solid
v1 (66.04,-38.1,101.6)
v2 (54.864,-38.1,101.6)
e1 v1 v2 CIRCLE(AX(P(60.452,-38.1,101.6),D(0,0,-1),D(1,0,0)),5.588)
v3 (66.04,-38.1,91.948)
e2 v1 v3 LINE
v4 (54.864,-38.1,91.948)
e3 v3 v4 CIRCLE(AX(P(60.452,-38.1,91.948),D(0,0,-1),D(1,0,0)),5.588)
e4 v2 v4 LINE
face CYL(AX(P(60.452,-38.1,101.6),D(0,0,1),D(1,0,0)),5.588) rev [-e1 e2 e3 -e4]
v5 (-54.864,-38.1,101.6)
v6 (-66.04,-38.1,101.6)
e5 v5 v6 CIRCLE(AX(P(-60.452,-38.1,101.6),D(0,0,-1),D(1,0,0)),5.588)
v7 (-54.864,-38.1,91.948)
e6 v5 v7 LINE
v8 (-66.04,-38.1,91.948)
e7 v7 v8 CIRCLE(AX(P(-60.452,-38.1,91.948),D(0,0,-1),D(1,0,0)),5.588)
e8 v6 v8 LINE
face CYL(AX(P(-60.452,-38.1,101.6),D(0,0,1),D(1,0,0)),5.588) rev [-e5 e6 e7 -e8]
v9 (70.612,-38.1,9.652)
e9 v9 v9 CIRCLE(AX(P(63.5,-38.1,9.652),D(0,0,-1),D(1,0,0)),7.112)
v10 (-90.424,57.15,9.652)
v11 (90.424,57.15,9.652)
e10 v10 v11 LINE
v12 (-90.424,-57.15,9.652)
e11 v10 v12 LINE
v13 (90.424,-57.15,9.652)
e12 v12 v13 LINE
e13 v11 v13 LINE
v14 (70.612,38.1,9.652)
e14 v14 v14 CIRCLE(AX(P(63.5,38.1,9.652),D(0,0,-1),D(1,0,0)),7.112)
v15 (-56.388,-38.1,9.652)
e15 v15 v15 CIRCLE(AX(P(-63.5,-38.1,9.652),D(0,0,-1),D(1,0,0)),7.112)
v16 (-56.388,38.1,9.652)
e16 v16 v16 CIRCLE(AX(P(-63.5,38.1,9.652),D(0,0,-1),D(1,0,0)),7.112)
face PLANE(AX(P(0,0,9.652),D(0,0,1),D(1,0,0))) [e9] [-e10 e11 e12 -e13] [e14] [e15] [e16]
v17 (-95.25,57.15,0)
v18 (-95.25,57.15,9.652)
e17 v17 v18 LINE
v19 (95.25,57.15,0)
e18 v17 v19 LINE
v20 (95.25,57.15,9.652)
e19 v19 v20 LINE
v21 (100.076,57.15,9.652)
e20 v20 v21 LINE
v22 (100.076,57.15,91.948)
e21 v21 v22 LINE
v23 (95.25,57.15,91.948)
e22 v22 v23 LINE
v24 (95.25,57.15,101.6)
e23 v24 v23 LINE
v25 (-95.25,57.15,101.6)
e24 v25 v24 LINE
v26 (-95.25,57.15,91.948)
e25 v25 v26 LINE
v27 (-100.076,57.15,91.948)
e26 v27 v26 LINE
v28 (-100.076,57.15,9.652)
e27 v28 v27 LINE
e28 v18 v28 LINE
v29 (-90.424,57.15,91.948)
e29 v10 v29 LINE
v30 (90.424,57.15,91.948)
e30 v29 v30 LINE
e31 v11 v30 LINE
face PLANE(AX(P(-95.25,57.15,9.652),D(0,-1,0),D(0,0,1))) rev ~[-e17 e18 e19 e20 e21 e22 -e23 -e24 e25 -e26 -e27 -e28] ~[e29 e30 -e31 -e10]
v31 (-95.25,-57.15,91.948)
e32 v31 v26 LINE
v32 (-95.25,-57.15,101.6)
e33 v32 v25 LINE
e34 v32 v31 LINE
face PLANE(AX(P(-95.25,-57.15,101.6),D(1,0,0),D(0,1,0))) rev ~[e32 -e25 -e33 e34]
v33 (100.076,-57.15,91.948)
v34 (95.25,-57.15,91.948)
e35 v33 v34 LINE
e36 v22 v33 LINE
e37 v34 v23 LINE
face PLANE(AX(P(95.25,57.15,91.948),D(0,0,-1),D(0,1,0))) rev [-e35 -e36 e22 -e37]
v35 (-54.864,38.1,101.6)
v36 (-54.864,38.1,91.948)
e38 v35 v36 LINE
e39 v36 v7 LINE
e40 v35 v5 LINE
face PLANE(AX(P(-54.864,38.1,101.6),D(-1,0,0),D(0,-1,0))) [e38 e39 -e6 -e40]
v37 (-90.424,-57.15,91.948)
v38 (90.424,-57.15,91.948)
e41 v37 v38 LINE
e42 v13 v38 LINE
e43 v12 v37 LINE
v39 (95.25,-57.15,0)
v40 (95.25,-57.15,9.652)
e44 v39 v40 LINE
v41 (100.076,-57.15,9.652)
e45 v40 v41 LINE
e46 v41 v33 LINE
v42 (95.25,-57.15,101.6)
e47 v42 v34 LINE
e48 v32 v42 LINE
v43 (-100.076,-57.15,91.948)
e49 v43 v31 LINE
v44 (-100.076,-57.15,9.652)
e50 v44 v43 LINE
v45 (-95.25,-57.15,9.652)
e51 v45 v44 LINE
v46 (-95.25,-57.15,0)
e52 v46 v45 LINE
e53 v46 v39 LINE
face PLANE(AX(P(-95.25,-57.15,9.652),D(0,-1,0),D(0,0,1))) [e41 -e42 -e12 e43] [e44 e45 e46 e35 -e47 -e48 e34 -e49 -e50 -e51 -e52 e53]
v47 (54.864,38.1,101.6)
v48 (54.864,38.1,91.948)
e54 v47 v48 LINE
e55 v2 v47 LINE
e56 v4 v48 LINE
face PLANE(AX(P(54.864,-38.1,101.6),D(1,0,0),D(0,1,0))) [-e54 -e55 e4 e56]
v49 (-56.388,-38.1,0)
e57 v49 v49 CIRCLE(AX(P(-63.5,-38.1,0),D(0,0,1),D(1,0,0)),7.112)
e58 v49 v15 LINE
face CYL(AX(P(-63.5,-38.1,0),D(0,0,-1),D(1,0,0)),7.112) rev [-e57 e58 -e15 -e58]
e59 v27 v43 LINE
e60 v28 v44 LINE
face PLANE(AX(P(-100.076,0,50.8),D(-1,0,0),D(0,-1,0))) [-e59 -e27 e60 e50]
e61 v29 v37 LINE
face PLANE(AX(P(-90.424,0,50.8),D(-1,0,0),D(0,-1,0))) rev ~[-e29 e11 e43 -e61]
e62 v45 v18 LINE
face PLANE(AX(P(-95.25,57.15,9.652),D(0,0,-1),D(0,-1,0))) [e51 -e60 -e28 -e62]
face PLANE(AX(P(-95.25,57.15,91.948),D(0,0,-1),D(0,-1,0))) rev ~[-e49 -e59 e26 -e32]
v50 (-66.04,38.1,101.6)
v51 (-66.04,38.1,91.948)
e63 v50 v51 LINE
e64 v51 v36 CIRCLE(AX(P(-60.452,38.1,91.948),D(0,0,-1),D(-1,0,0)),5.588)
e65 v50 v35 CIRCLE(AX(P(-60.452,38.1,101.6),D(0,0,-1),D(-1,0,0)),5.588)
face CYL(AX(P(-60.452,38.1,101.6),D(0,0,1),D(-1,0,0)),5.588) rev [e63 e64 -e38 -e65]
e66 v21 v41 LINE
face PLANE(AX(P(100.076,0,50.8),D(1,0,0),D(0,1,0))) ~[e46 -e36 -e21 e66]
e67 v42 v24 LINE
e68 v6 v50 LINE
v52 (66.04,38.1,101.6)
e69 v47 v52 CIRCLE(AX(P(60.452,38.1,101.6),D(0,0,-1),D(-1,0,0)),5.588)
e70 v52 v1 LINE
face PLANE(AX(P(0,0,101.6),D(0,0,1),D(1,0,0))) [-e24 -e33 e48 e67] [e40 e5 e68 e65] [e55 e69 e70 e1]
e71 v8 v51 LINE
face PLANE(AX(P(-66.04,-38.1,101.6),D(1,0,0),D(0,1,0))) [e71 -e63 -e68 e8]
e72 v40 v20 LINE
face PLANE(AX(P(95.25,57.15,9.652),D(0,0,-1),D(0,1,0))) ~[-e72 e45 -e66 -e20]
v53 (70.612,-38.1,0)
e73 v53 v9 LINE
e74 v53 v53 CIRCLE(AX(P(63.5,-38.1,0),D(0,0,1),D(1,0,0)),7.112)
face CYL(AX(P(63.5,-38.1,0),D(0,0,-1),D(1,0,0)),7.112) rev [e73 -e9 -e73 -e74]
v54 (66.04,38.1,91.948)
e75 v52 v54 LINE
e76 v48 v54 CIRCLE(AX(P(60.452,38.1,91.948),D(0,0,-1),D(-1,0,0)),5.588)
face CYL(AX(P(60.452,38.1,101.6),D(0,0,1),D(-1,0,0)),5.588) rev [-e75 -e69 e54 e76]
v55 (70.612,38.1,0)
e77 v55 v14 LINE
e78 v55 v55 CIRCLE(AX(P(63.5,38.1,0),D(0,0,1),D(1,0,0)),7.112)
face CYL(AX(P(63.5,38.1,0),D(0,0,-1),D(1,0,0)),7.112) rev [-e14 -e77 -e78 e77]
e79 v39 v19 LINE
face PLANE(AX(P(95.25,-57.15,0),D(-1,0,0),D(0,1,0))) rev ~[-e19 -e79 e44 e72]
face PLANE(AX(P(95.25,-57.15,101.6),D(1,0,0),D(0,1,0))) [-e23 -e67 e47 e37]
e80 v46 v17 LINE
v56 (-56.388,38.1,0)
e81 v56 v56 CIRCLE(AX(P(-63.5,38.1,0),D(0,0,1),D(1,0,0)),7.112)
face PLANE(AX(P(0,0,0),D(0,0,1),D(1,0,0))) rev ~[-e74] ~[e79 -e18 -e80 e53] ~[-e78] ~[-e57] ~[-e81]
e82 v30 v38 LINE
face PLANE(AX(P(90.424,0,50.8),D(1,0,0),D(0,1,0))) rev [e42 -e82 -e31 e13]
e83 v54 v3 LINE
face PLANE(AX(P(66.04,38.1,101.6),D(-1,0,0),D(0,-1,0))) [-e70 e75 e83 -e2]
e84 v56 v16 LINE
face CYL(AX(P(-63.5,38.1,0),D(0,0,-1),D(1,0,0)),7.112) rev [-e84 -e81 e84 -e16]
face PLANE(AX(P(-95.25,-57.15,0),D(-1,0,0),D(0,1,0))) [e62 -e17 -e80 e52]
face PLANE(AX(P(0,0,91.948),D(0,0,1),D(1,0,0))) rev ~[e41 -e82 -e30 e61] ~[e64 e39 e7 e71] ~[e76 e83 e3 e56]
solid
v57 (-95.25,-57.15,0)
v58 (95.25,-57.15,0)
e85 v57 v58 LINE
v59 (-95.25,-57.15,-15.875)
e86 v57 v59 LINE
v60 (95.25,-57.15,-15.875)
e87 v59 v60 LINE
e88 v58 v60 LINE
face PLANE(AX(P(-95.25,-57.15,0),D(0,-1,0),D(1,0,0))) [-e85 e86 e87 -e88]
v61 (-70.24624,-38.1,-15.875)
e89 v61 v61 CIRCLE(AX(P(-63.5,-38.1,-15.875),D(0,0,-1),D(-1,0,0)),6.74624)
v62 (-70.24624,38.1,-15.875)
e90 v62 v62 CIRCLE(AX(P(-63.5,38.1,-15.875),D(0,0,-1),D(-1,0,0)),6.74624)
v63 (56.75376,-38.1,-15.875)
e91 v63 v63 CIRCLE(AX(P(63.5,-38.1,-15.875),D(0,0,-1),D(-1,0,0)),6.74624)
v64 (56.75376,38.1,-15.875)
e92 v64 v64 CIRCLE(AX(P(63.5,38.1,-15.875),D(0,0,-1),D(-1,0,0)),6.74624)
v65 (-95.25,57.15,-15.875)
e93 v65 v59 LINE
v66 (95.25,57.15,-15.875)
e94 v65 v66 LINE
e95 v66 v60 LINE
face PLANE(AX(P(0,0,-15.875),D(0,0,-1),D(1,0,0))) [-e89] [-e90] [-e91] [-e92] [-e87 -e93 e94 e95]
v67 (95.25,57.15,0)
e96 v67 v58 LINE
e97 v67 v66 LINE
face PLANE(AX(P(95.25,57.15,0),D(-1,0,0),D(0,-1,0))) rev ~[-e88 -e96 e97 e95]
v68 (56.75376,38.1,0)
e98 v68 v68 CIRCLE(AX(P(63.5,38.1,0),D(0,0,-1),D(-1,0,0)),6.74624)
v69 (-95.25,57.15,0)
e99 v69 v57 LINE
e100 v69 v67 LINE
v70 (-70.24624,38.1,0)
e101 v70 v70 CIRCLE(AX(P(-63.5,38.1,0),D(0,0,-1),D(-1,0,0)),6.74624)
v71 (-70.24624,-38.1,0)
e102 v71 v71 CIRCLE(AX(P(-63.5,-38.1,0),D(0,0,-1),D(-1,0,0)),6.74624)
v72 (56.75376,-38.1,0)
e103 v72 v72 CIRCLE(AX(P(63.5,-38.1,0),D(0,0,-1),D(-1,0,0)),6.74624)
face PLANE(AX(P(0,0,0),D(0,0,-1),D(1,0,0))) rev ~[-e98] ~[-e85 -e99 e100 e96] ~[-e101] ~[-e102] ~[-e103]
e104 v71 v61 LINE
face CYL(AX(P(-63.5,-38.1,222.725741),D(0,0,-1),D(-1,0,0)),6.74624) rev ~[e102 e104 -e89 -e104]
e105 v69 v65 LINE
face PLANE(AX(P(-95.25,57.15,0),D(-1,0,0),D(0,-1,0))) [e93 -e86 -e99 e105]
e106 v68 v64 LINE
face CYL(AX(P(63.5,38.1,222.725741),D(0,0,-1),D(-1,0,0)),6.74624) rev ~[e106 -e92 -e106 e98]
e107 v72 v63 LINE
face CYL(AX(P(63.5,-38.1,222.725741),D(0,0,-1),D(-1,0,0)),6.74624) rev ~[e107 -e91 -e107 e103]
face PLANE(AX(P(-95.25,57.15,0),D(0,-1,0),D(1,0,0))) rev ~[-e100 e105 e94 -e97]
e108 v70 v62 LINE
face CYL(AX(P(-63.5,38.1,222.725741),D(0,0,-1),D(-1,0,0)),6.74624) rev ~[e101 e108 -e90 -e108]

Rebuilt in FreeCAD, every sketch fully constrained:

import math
import FreeCAD as App
import Part
import Sketcher
Q = App.Units.Quantity

doc = App.newDocument("Part")
body = doc.addObject("PartDesign::Body", "Body")

sketch1 = body.newObject("Sketcher::SketchObject", "Sketch")
sketch1.AttachmentSupport = (doc.getObject("XY_Plane"), [""])
sketch1.MapMode = "FlatFace"
sketch1.addGeometry([
    Part.LineSegment(App.Vector(-95, 57, 0), App.Vector(-95, -57, 0)),
    Part.LineSegment(App.Vector(-95, -57, 0), App.Vector(95, -57, 0)),
    Part.LineSegment(App.Vector(95, -57, 0), App.Vector(95, 57, 0)),
    Part.LineSegment(App.Vector(95, 57, 0), App.Vector(-95, 57, 0)),
    Part.Circle(App.Vector(-64, -38, 0), App.Vector(0, 0, 1), 7),
    Part.Circle(App.Vector(64, -38, 0), App.Vector(0, 0, 1), 7),
    Part.Circle(App.Vector(-64, 38, 0), App.Vector(0, 0, 1), 7),
    Part.Circle(App.Vector(64, 38, 0), App.Vector(0, 0, 1), 7),
], False)
sketch1.addConstraint([
    Sketcher.Constraint("Coincident", 0, 2, 1, 1),
    Sketcher.Constraint("Coincident", 1, 2, 2, 1),
    Sketcher.Constraint("Coincident", 2, 2, 3, 1),
    Sketcher.Constraint("Coincident", 3, 2, 0, 1),
    Sketcher.Constraint("Vertical", 0),
    Sketcher.Constraint("Horizontal", 1),
    Sketcher.Constraint("Vertical", 2),
    Sketcher.Constraint("Horizontal", 3),
    Sketcher.Constraint("Equal", 4, 5),
    Sketcher.Constraint("Equal", 5, 6),
    Sketcher.Constraint("Equal", 6, 7),
    Sketcher.Constraint("Symmetric", 5, 3, 6, 3, -1, 1),
    Sketcher.Constraint("Symmetric", 4, 3, 7, 3, -1, 1),
    Sketcher.Constraint("Symmetric", 0, 2, 2, 2, -1, 1),
    Sketcher.Constraint("Symmetric", 4, 3, 5, 3, -2),
    Sketcher.Constraint("Diameter", 4, Q("0.56 in")),
    Sketcher.Constraint("DistanceX", 1, 1, 1, 2, Q("7.5 in")),
    Sketcher.Constraint("DistanceY", 0, 2, 0, 1, Q("4.5 in")),
    Sketcher.Constraint("DistanceX", 4, 3, 5, 3, Q("5 in")),
    Sketcher.Constraint("DistanceY", 4, 3, 6, 3, Q("3 in")),
])
pad1 = body.newObject("PartDesign::Pad", "Pad")
pad1.Profile = sketch1
pad1.Length = Q("0.38 in")
body2 = doc.addObject("PartDesign::Body", "Body001")

sketch2 = body2.newObject("Sketcher::SketchObject", "Sketch001")
sketch2.AttachmentSupport = (doc.getObject("XY_Plane001"), [""])
sketch2.MapMode = "FlatFace"
sketch2.AttachmentOffset = App.Placement(App.Vector(0, 0, 4 * 25.4), App.Rotation())
sketch2.addGeometry([
    Part.LineSegment(App.Vector(-95, 57, 0), App.Vector(-95, -57, 0)),
    Part.LineSegment(App.Vector(-95, -57, 0), App.Vector(95, -57, 0)),
    Part.LineSegment(App.Vector(95, -57, 0), App.Vector(95, 57, 0)),
    Part.LineSegment(App.Vector(95, 57, 0), App.Vector(-95, 57, 0)),
    Part.ArcOfCircle(Part.Circle(App.Vector(-60, -38, 0), App.Vector(0, 0, 1), 6), math.radians(180), math.radians(360)),
    Part.LineSegment(App.Vector(-66, -38, 0), App.Vector(-66, 38, 0)),
    Part.ArcOfCircle(Part.Circle(App.Vector(-60, 38, 0), App.Vector(0, 0, 1), 6), math.radians(0), math.radians(180)),
    Part.LineSegment(App.Vector(-55, 38, 0), App.Vector(-55, -38, 0)),
    Part.LineSegment(App.Vector(55, -38, 0), App.Vector(55, 38, 0)),
    Part.ArcOfCircle(Part.Circle(App.Vector(60, 38, 0), App.Vector(0, 0, 1), 6), math.radians(0), math.radians(180)),
    Part.LineSegment(App.Vector(66, 38, 0), App.Vector(66, -38, 0)),
    Part.ArcOfCircle(Part.Circle(App.Vector(60, -38, 0), App.Vector(0, 0, 1), 6), math.radians(180), math.radians(360)),
], False)
sketch2.addConstraint([
    Sketcher.Constraint("Coincident", 0, 2, 1, 1),
    Sketcher.Constraint("Coincident", 1, 2, 2, 1),
    Sketcher.Constraint("Coincident", 2, 2, 3, 1),
    Sketcher.Constraint("Coincident", 3, 2, 0, 1),
    Sketcher.Constraint("Tangent", 4, 1, 5, 1),
    Sketcher.Constraint("Tangent", 5, 2, 6, 2),
    Sketcher.Constraint("Tangent", 6, 1, 7, 1),
    Sketcher.Constraint("Tangent", 7, 2, 4, 2),
    Sketcher.Constraint("Tangent", 8, 2, 9, 2),
    Sketcher.Constraint("Tangent", 9, 1, 10, 1),
    Sketcher.Constraint("Tangent", 10, 2, 11, 2),
    Sketcher.Constraint("Tangent", 11, 1, 8, 1),
    Sketcher.Constraint("Vertical", 0),
    Sketcher.Constraint("Horizontal", 1),
    Sketcher.Constraint("Vertical", 2),
    Sketcher.Constraint("Horizontal", 3),
    Sketcher.Constraint("Vertical", 5),
    Sketcher.Constraint("Vertical", 7),
    Sketcher.Constraint("Vertical", 8),
    Sketcher.Constraint("Vertical", 10),
    Sketcher.Constraint("Equal", 6, 9),
    Sketcher.Constraint("Symmetric", 4, 3, 9, 3, -1, 1),
    Sketcher.Constraint("Symmetric", 0, 2, 2, 2, -1, 1),
    Sketcher.Constraint("Horizontal", 6, 3, 9, 3),
    Sketcher.Constraint("Horizontal", 4, 3, 11, 3),
    Sketcher.Constraint("DistanceY", 5, 1, 5, 2, Q("3 in")),
    Sketcher.Constraint("Radius", 4, Q("0.22 in")),
    Sketcher.Constraint("DistanceX", 1, 1, 1, 2, Q("7.5 in")),
    Sketcher.Constraint("DistanceY", 0, 2, 0, 1, Q("4.5 in")),
    Sketcher.Constraint("DistanceX", 4, 1, -1, 1, Q("2.6 in")),
])
pad2 = body2.newObject("PartDesign::Pad", "Pad001")
pad2.Profile = sketch2
pad2.Length = Q("0.38 in")
pad2.Reversed = True
body.AllowCompound = True
doc.recompute()

boolean = body.newObject("PartDesign::Boolean", "Boolean")
boolean.Type = "Fuse"
boolean.addObjects([body2])

sketch3 = body.newObject("Sketcher::SketchObject", "Sketch002")
sketch3.AttachmentSupport = (doc.getObject("YZ_Plane"), [""])
sketch3.MapMode = "FlatFace"
sketch3.AttachmentOffset = App.Placement(App.Vector(0, 0, -3.75 * 25.4), App.Rotation())
sketch3.addGeometry([
    Part.LineSegment(App.Vector(57, 92, 0), App.Vector(57, 10, 0)),
    Part.LineSegment(App.Vector(57, 10, 0), App.Vector(-57, 10, 0)),
    Part.LineSegment(App.Vector(-57, 10, 0), App.Vector(-57, 92, 0)),
    Part.LineSegment(App.Vector(-57, 92, 0), App.Vector(57, 92, 0)),
], False)
sketch3.addConstraint([
    Sketcher.Constraint("Coincident", 0, 2, 1, 1),
    Sketcher.Constraint("Coincident", 1, 2, 2, 1),
    Sketcher.Constraint("Coincident", 2, 2, 3, 1),
    Sketcher.Constraint("Coincident", 3, 2, 0, 1),
    Sketcher.Constraint("Vertical", 0),
    Sketcher.Constraint("Horizontal", 1),
    Sketcher.Constraint("Vertical", 2),
    Sketcher.Constraint("Horizontal", 3),
    Sketcher.Constraint("DistanceX", 1, 2, 1, 1, Q("4.5 in")),
    Sketcher.Constraint("DistanceY", 0, 2, 0, 1, Q("3.24 in")),
    Sketcher.Constraint("DistanceX", -1, 1, 0, 2, Q("2.25 in")),
    Sketcher.Constraint("DistanceY", -1, 1, 0, 2, Q("0.38 in")),
])
pad3 = body.newObject("PartDesign::Pad", "Pad002")
pad3.Profile = sketch3
pad3.Length = Q("0.38 in")
pad3.Midplane = True
body3 = doc.addObject("PartDesign::Body", "Body002")
doc.recompute()

body3.BaseFeature = body
doc.recompute()

mirroring = doc.addObject("Part::Mirroring", "Mirroring")
mirroring.Source = body
mirroring.Base = App.Vector(0, 0, 0)
mirroring.Normal = App.Vector(1, 0, 0)
body4 = doc.addObject("PartDesign::Body", "Body003")
body4.BaseFeature = mirroring
boolean2 = body3.newObject("PartDesign::Boolean", "Boolean001")
boolean2.Type = "Fuse"
boolean2.addObjects([body4])
doc.recompute()
body5 = doc.addObject("PartDesign::Body", "Body004")

sketch4 = body5.newObject("Sketcher::SketchObject", "Sketch003")
sketch4.AttachmentSupport = (doc.getObject("XY_Plane004"), [""])
sketch4.MapMode = "FlatFace"
sketch4.addGeometry([
    Part.LineSegment(App.Vector(-95, -57, 0), App.Vector(-95, 57, 0)),
    Part.LineSegment(App.Vector(-95, 57, 0), App.Vector(95, 57, 0)),
    Part.LineSegment(App.Vector(95, 57, 0), App.Vector(95, -57, 0)),
    Part.LineSegment(App.Vector(95, -57, 0), App.Vector(-95, -57, 0)),
], False)
sketch4.addConstraint([
    Sketcher.Constraint("Coincident", 0, 2, 1, 1),
    Sketcher.Constraint("Coincident", 1, 2, 2, 1),
    Sketcher.Constraint("Coincident", 2, 2, 3, 1),
    Sketcher.Constraint("Coincident", 3, 2, 0, 1),
    Sketcher.Constraint("Vertical", 0),
    Sketcher.Constraint("Horizontal", 1),
    Sketcher.Constraint("Vertical", 2),
    Sketcher.Constraint("Horizontal", 3),
    Sketcher.Constraint("Symmetric", 0, 2, 2, 2, -1, 1),
    Sketcher.Constraint("DistanceX", 1, 1, 1, 2, Q("7.5 in")),
    Sketcher.Constraint("DistanceY", 0, 1, 0, 2, Q("4.5 in")),
])
pad4 = body5.newObject("PartDesign::Pad", "Pad003")
pad4.Profile = sketch4
pad4.Length = Q("0.625 in")
pad4.Reversed = True

sketch5 = body5.newObject("Sketcher::SketchObject", "Sketch004")
sketch5.AttachmentSupport = (doc.getObject("XY_Plane004"), [""])
sketch5.MapMode = "FlatFace"
sketch5.addGeometry([
    Part.Circle(App.Vector(-64, 38, 0), App.Vector(0, 0, 1), 7),
    Part.Circle(App.Vector(64, 38, 0), App.Vector(0, 0, 1), 7),
    Part.Circle(App.Vector(64, -38, 0), App.Vector(0, 0, 1), 7),
    Part.Circle(App.Vector(-64, -38, 0), App.Vector(0, 0, 1), 7),
], False)
sketch5.addConstraint([
    Sketcher.Constraint("Equal", 0, 1),
    Sketcher.Constraint("Equal", 1, 2),
    Sketcher.Constraint("Equal", 2, 3),
    Sketcher.Constraint("Symmetric", 0, 3, 2, 3, -1, 1),
    Sketcher.Constraint("Symmetric", 1, 3, 3, 3, -1, 1),
    Sketcher.Constraint("Symmetric", 0, 3, 1, 3, -2),
    Sketcher.Constraint("DistanceX", 0, 3, 1, 3, Q("5 in")),
    Sketcher.Constraint("DistanceY", 2, 3, 1, 3, Q("3 in")),
    Sketcher.Constraint("Diameter", 0, Q("0.5312 in")),
])
doc.recompute()
hole = body5.newObject("PartDesign::Hole", "Hole")
hole.Profile = sketch5
hole.ThreadType = "None"
hole.Diameter = Q("0.5312 in")
hole.DepthType = "ThroughAll"
mirroring.Visibility = False

doc.recompute()
